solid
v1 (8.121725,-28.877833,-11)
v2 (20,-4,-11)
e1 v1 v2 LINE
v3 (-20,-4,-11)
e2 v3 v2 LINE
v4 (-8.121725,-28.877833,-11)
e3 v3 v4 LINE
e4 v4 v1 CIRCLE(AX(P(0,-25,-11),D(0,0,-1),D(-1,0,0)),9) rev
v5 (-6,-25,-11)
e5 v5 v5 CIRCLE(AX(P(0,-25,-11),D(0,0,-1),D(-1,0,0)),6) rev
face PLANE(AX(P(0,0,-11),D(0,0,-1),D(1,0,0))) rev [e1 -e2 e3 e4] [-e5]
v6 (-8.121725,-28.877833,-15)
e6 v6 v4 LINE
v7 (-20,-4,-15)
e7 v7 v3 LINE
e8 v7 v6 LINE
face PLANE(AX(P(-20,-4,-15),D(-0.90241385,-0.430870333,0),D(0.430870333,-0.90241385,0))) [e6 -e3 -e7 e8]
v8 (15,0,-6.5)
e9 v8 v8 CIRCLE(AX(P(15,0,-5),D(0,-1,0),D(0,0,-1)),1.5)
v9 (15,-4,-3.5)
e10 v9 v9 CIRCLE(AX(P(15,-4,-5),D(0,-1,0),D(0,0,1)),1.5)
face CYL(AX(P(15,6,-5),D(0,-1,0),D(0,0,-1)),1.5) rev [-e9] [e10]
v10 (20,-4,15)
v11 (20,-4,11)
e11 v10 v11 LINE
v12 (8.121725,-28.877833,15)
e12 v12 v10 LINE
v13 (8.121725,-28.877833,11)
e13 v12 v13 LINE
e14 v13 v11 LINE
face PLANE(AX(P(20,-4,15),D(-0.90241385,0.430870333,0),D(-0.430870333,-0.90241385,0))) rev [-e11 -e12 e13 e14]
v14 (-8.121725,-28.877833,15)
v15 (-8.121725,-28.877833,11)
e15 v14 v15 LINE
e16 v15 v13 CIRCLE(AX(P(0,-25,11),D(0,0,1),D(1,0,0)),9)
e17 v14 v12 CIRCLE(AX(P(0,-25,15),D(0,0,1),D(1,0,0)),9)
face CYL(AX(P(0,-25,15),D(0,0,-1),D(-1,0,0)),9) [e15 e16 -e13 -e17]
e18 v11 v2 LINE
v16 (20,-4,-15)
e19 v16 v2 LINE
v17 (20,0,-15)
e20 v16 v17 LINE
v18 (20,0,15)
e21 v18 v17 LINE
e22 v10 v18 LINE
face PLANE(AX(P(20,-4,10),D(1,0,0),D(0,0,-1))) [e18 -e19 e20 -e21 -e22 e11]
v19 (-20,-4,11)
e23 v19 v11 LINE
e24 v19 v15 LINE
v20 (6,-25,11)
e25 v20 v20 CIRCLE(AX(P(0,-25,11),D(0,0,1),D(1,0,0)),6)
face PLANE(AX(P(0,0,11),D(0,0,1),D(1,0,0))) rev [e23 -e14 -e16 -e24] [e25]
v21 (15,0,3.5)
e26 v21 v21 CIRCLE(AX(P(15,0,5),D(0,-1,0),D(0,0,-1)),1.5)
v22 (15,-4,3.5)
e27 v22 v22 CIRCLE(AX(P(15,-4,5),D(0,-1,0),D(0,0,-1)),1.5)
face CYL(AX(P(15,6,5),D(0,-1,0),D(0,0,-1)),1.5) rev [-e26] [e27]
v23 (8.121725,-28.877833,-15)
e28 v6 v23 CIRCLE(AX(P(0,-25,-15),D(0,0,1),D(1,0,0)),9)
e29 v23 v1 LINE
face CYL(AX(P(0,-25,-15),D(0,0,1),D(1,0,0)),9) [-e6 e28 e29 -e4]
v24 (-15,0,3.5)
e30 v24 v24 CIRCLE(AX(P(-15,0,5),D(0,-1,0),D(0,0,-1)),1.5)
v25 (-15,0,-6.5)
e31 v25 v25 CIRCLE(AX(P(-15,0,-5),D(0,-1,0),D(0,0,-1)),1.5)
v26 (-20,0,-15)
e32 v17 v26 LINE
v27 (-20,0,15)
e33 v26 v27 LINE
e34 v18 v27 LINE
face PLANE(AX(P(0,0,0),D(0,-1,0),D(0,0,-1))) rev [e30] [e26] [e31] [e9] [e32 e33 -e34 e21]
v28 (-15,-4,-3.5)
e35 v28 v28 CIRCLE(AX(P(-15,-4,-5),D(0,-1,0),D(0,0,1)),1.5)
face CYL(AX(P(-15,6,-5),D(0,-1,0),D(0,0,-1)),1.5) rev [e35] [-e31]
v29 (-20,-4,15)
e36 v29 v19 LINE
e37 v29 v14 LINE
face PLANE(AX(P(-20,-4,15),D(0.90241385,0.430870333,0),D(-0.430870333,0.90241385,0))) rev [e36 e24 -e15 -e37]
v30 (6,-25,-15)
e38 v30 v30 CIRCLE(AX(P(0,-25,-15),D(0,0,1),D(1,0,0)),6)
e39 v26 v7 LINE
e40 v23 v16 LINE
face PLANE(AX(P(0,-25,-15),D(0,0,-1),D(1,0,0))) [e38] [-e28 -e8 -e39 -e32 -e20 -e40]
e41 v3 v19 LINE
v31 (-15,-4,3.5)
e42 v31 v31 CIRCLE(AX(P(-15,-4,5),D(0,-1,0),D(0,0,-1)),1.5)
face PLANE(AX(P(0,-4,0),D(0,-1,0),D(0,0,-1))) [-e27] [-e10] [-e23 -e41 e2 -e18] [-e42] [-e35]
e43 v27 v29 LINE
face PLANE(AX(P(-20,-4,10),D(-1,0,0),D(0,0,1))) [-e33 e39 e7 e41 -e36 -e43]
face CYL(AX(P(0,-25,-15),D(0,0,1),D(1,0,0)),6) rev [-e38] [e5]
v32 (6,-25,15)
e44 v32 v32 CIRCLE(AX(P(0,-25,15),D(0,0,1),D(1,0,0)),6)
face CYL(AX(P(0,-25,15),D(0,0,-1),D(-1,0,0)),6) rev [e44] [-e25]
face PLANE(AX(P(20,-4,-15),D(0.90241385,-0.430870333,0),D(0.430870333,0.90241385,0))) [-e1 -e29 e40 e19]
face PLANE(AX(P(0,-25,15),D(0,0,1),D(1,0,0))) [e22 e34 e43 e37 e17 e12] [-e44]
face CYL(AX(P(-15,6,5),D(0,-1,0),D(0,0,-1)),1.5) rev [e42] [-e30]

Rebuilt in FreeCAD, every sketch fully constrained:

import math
import FreeCAD as App
import Part
import Sketcher
Q = App.Units.Quantity


def add_polygon(sketch, points):
    """Adds a closed chain of lines whose ends are joined by coincident constraints."""
    first, n = sketch.GeometryCount, len(points)
    for a, b in zip(points, points[1:] + points[:1]):
        sketch.addGeometry(Part.LineSegment(App.Vector(*a, 0), App.Vector(*b, 0)), False)
    for i in range(n):
        sketch.addConstraint(Sketcher.Constraint("Coincident", first + i, 2, first + (i + 1) % n, 1))

doc = App.newDocument("Part")
params = doc.addObject("Spreadsheet::Sheet", "Params")
for row, (alias, value) in enumerate([
    ("sketch1_width", "40 mm"),
    ("sketch1_height", "20 mm"),
    ("pad1_length", "4 mm"),
    ("sketch2_diameter", "12 mm"),
    ("sketch2_radius", "9 mm"),
    ("sketch2_width", "40 mm"),
    ("sketch2_height", "4 mm"),
    ("pad2_length", "5 mm"),
    ("sketch3_width", "40 mm"),
    ("sketch3_height", "35 mm"),
    ("pocket1_length", "1 mm"),
    ("sketch4_diameter", "3 mm"),
    ("pocket2_length", "10 mm"),
], start=1):
    params.set(f"A{row}", alias)
    params.set(f"B{row}", "=" + value)
    params.setAlias(f"B{row}", alias)

body = doc.addObject("PartDesign::Body", "Body")

# Sketch on XZ plane
sketch1 = body.newObject("Sketcher::SketchObject", "Sketch")
sketch1.AttachmentSupport = (doc.getObject("XZ_Plane"), [""])
sketch1.MapMode = "FlatFace"
add_polygon(sketch1, [(-20, -10), (-20, 10), (20, 10), (20, -10)])  # lines 0-3
sketch1.addConstraint([
    Sketcher.Constraint("Vertical", 0),
    Sketcher.Constraint("Horizontal", 1),
    Sketcher.Constraint("Vertical", 2),
    Sketcher.Constraint("Horizontal", 3),
    Sketcher.Constraint("Symmetric", 0, 2, 2, 2, -1, 1),
    Sketcher.Constraint("DistanceX", 1, 1, 1, 2, Q("40 mm")),
    Sketcher.Constraint("DistanceY", 0, 1, 0, 2, Q("20 mm")),
])
sketch1.setExpression("Constraints[9]", "Params.sketch1_width")
sketch1.setExpression("Constraints[10]", "Params.sketch1_height")
pad1 = body.newObject("PartDesign::Pad", "Pad")
pad1.Profile = sketch1
pad1.setExpression("Length", "Params.pad1_length")

# Sketch on XY plane
sketch2 = body.newObject("Sketcher::SketchObject", "Sketch001")
sketch2.AttachmentSupport = (doc.getObject("XY_Plane"), [""])
sketch2.MapMode = "FlatFace"
sketch2.AttachmentOffset = App.Placement(App.Vector(0, 0, 10), App.Rotation())
sketch2.addGeometry([
    Part.LineSegment(App.Vector(20, -4, 0), App.Vector(20, 0, 0)),  # 0
    Part.LineSegment(App.Vector(20, 0, 0), App.Vector(-20, 0, 0)),  # 1
    Part.LineSegment(App.Vector(-20, 0, 0), App.Vector(-20, -4, 0)),  # 2
    Part.LineSegment(App.Vector(-20, -4, 0), App.Vector(-8.1, -28.9, 0)),  # 3
    Part.ArcOfCircle(Part.Circle(App.Vector(0, -25, 0), App.Vector(0, 0, 1), 9), math.radians(-154), math.radians(-26)),  # 4
    Part.LineSegment(App.Vector(8.1, -28.9, 0), App.Vector(20, -4, 0)),  # 5
    Part.Circle(App.Vector(0, -25, 0), App.Vector(0, 0, 1), 6),  # 6
], False)
sketch2.addConstraint([
    Sketcher.Constraint("Coincident", 0, 2, 1, 1),
    Sketcher.Constraint("Coincident", 1, 2, 2, 1),
    Sketcher.Constraint("Coincident", 2, 2, 3, 1),
    Sketcher.Constraint("Tangent", 3, 2, 4, 1),
    Sketcher.Constraint("Tangent", 4, 2, 5, 1),
    Sketcher.Constraint("Coincident", 5, 2, 0, 1),
    Sketcher.Constraint("Vertical", 0),
    Sketcher.Constraint("Horizontal", 1),
    Sketcher.Constraint("Vertical", 2),
    Sketcher.Constraint("Coincident", 6, 3, 4, 3),
    Sketcher.Constraint("Symmetric", 0, 2, 1, 2, -1, 1),
    Sketcher.Constraint("Symmetric", 3, 2, 4, 2, -2),
    Sketcher.Constraint("Diameter", 6, Q("12 mm")),
    Sketcher.Constraint("Radius", 4, Q("9 mm")),
    Sketcher.Constraint("DistanceX", 1, 2, 1, 1, Q("40 mm")),
    Sketcher.Constraint("DistanceY", 0, 1, 0, 2, Q("4 mm")),
    Sketcher.Constraint("DistanceY", 4, 3, -1, 1, Q("25 mm")),
])
sketch2.setExpression("Constraints[12]", "Params.sketch2_diameter")
sketch2.setExpression("Constraints[13]", "Params.sketch2_radius")
sketch2.setExpression("Constraints[14]", "Params.sketch2_width")
sketch2.setExpression("Constraints[15]", "Params.sketch2_height")
pad2 = body.newObject("PartDesign::Pad", "Pad001")
pad2.Profile = sketch2
pad2.setExpression("Length", "Params.pad2_length")

# Sketch on XY plane
sketch3 = body.newObject("Sketcher::SketchObject", "Sketch002")
sketch3.AttachmentSupport = (doc.getObject("XY_Plane"), [""])
sketch3.MapMode = "FlatFace"
sketch3.AttachmentOffset = App.Placement(App.Vector(0, 0, 10), App.Rotation())
add_polygon(sketch3, [(20, -4), (20, -39), (-20, -39), (-20, -4)])  # lines 0-3
sketch3.addConstraint([
    Sketcher.Constraint("Vertical", 0),
    Sketcher.Constraint("Horizontal", 1),
    Sketcher.Constraint("Vertical", 2),
    Sketcher.Constraint("Horizontal", 3),
    Sketcher.Constraint("DistanceX", 1, 2, 1, 1, Q("40 mm")),
    Sketcher.Constraint("DistanceY", 0, 2, 0, 1, Q("35 mm")),
    Sketcher.Constraint("DistanceX", -1, 1, 0, 2, Q("20 mm")),
    Sketcher.Constraint("DistanceY", 0, 2, -1, 1, Q("39 mm")),
])
sketch3.setExpression("Constraints[8]", "Params.sketch3_width")
sketch3.setExpression("Constraints[9]", "Params.sketch3_height")
pocket1 = body.newObject("PartDesign::Pocket", "Pocket")
pocket1.Profile = sketch3
pocket1.setExpression("Length", "Params.pocket1_length")
pocket1.Reversed = True
doc.recompute()

mirrored = body.newObject("PartDesign::Mirrored", "Mirrored")
mirrored.Originals = [pad2, pocket1]
mirrored.MirrorPlane = (doc.getObject("XY_Plane"), [""])
body.Tip = mirrored

# Sketch on XZ plane
sketch4 = body.newObject("Sketcher::SketchObject", "Sketch003")
sketch4.AttachmentSupport = (doc.getObject("XZ_Plane"), [""])
sketch4.MapMode = "FlatFace"
sketch4.AttachmentOffset = App.Placement(App.Vector(0, 0, 4), App.Rotation())
sketch4.addGeometry([
    Part.Circle(App.Vector(-15, 5, 0), App.Vector(0, 0, 1), 1.5),
    Part.Circle(App.Vector(15, 5, 0), App.Vector(0, 0, 1), 1.5),
    Part.Circle(App.Vector(-15, -5, 0), App.Vector(0, 0, 1), 1.5),
    Part.Circle(App.Vector(15, -5, 0), App.Vector(0, 0, 1), 1.5),
], False)
sketch4.addConstraint([
    Sketcher.Constraint("Equal", 0, 1),
    Sketcher.Constraint("Equal", 1, 2),
    Sketcher.Constraint("Equal", 2, 3),
    Sketcher.Constraint("Symmetric", 1, 3, 2, 3, -1, 1),
    Sketcher.Constraint("Symmetric", 0, 3, 3, 3, -1, 1),
    Sketcher.Constraint("Symmetric", 0, 3, 1, 3, -2),
    Sketcher.Constraint("Diameter", 0, Q("3 mm")),
    Sketcher.Constraint("DistanceX", 0, 3, -1, 1, Q("15 mm")),
    Sketcher.Constraint("DistanceY", -1, 1, 0, 3, Q("5 mm")),
])
sketch4.setExpression("Constraints[6]", "Params.sketch4_diameter")
pocket2 = body.newObject("PartDesign::Pocket", "Pocket001")
pocket2.Profile = sketch4
pocket2.setExpression("Length", "Params.pocket2_length")

doc.recompute()
